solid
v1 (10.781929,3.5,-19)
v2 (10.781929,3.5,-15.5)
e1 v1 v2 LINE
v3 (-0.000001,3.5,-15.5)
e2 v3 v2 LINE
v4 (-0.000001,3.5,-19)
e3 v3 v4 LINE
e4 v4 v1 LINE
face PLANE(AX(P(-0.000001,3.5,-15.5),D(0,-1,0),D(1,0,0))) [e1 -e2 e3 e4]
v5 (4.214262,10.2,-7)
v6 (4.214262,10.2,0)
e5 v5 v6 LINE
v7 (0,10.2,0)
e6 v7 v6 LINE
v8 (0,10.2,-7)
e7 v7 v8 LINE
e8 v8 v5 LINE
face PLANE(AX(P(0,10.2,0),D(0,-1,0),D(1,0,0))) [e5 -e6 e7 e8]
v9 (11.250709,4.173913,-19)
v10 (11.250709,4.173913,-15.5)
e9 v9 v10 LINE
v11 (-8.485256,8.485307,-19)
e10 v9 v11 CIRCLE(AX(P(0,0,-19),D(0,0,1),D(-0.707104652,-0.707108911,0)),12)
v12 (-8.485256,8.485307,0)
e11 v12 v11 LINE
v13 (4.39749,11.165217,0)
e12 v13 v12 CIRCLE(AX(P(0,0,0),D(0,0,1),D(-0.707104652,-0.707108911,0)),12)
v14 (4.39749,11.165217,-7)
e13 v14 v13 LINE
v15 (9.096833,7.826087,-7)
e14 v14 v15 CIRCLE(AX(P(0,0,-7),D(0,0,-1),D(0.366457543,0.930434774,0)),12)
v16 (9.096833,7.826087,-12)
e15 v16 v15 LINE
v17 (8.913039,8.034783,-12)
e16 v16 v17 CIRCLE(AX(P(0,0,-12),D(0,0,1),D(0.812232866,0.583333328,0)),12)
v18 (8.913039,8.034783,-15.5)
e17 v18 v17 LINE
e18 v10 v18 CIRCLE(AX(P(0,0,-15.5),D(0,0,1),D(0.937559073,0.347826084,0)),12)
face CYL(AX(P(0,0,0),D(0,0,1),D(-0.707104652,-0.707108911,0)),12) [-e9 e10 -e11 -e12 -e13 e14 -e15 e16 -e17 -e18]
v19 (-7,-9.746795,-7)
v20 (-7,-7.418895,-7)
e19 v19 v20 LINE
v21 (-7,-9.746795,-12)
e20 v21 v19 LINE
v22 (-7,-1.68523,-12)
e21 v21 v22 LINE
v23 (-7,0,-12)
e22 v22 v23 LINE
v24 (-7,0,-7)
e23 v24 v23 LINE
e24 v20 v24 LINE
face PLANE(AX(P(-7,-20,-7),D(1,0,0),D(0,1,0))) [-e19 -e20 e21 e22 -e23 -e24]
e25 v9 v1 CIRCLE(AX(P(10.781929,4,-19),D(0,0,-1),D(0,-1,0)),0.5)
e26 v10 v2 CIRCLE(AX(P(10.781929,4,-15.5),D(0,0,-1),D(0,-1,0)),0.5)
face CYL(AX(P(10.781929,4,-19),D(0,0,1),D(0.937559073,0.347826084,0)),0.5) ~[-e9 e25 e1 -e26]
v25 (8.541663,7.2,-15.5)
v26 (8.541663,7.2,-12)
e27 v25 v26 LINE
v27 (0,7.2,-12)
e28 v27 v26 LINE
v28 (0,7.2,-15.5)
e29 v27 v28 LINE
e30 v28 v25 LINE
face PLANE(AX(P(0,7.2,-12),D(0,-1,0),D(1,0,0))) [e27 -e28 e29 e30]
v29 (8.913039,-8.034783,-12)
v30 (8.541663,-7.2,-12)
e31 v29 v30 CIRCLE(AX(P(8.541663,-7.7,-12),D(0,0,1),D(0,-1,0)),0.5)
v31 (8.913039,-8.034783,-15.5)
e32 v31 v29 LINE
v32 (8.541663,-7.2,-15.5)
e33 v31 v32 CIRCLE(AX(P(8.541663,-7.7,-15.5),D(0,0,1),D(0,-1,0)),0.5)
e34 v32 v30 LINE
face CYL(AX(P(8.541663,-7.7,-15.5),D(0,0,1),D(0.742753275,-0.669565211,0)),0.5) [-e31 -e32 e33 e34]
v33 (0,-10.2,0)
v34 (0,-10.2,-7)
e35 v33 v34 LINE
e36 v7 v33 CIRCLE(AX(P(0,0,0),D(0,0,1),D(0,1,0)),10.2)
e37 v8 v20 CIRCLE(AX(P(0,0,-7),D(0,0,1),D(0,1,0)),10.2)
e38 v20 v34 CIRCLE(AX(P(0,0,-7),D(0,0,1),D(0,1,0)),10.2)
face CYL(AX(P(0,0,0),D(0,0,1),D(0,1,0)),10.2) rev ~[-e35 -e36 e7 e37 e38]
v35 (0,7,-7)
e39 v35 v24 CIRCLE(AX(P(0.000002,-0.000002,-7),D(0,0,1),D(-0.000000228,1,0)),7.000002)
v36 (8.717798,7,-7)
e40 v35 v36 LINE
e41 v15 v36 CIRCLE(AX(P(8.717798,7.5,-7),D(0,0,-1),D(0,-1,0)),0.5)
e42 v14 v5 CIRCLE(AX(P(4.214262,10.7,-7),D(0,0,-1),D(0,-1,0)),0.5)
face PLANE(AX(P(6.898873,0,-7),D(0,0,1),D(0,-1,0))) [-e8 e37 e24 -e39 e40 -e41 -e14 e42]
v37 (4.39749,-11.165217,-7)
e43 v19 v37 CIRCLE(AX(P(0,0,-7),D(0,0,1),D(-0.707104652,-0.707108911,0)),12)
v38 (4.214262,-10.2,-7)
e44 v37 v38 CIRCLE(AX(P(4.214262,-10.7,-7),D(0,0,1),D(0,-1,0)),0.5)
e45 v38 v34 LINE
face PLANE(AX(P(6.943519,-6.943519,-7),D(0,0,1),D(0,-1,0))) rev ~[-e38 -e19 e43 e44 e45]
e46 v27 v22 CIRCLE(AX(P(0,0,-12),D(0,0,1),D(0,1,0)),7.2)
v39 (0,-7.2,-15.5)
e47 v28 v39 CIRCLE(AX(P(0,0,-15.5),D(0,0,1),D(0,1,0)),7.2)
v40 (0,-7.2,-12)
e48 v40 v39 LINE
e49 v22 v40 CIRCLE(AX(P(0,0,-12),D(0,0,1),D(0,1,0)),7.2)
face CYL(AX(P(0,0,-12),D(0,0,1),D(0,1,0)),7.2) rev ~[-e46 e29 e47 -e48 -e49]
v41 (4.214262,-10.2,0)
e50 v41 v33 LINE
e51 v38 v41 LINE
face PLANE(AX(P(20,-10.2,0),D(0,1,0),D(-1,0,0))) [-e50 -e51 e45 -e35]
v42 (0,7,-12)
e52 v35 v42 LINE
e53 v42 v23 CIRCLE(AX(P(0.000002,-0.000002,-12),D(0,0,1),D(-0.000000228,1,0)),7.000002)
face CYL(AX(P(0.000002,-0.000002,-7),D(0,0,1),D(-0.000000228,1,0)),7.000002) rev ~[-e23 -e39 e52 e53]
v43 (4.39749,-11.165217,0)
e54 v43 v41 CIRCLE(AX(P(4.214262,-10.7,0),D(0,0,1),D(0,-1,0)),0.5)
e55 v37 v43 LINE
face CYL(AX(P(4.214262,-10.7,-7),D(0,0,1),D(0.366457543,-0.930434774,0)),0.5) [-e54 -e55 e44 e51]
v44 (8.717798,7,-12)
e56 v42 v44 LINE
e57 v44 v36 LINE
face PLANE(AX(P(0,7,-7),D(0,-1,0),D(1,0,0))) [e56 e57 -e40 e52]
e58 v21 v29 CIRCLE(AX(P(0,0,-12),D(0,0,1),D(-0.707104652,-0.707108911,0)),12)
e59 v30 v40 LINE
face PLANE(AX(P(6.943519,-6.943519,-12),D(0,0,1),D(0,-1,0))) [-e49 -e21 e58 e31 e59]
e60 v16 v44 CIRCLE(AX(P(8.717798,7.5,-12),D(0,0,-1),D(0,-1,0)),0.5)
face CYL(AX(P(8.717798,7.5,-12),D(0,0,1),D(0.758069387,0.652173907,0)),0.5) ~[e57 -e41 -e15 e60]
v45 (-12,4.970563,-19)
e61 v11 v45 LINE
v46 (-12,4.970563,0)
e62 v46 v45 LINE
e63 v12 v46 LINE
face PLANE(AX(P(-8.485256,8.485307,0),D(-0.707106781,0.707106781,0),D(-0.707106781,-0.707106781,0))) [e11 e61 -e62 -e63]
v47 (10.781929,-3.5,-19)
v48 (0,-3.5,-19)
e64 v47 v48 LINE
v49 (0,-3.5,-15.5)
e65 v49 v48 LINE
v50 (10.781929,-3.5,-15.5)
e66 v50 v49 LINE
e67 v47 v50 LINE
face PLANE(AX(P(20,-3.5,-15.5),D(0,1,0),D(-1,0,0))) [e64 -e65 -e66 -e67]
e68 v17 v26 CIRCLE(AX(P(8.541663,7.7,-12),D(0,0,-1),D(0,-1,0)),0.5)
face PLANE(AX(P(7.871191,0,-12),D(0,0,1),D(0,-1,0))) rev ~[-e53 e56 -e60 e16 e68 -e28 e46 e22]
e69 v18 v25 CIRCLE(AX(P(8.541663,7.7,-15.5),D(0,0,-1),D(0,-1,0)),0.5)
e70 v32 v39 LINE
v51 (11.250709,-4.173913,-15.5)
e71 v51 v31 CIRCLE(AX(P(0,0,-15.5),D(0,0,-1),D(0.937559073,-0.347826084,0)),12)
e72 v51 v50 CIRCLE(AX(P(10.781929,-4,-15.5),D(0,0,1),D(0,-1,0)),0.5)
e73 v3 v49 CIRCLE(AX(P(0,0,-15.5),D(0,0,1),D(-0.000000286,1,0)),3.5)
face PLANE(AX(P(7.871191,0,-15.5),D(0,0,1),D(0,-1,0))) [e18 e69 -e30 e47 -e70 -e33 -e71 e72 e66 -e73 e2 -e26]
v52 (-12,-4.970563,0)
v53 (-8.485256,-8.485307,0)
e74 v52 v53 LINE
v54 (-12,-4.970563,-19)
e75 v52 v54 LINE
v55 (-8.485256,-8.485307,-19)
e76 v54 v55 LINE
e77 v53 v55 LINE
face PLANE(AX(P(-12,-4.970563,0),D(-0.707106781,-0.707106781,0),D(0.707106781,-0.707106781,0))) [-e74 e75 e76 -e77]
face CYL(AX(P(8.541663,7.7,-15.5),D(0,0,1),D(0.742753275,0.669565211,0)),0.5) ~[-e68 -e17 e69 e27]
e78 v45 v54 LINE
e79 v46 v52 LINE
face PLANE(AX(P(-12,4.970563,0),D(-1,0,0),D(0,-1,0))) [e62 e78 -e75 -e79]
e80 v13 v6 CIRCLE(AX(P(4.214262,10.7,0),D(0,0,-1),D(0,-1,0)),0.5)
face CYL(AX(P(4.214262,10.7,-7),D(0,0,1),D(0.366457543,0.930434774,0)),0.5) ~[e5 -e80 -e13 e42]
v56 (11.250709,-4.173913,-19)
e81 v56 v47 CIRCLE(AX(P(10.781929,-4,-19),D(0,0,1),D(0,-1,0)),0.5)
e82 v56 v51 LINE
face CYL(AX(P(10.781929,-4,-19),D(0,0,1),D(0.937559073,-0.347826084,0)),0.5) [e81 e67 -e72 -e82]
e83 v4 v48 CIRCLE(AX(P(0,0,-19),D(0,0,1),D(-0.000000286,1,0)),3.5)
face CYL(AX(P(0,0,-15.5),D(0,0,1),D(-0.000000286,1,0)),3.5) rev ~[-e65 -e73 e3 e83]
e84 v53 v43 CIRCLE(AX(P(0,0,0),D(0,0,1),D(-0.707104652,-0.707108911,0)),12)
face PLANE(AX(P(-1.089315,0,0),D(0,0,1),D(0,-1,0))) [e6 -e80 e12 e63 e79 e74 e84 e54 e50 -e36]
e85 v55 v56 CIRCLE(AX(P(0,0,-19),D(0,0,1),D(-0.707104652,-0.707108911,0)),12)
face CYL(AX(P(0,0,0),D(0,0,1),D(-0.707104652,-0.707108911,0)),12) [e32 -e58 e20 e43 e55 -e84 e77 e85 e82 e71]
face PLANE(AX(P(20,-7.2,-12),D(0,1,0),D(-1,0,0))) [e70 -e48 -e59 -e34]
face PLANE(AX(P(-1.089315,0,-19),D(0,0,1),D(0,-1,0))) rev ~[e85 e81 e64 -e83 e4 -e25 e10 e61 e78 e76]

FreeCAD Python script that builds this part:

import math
import FreeCAD as App
import Part
import Sketcher
Q = App.Units.Quantity


def edges_at(feature, points):
    """Names of the edges that pass closest to the given points."""
    edges = feature.Shape.Edges
    near = lambda p: min(range(len(edges)), key=lambda i: edges[i].distToShape(Part.Vertex(*p))[0])
    return sorted({f"Edge{near(p) + 1}" for p in points})

doc = App.newDocument("Part")
body = doc.addObject("PartDesign::Body", "Body")

sketch1 = body.newObject("Sketcher::SketchObject", "Sketch")
sketch1.AttachmentSupport = (doc.getObject("XY_Plane"), [""])
sketch1.MapMode = "FlatFace"
sketch1.addGeometry(Part.ArcOfCircle(Part.Circle(App.Vector(0, 0, 0), App.Vector(0, 0, 1), 12), math.radians(-134.999827), math.radians(134.999827)), False)
sketch1.addGeometry(Part.LineSegment(App.Vector(-8.485256, 8.485307, 0), App.Vector(-12, 4.970563, 0)), False)
sketch1.addGeometry(Part.LineSegment(App.Vector(-12, 4.970563, 0), App.Vector(-12, -4.970563, 0)), False)
sketch1.addGeometry(Part.LineSegment(App.Vector(-12, -4.970563, 0), App.Vector(-8.485256, -8.485307, 0)), False)
sketch1.addConstraint(Sketcher.Constraint("Coincident", 0, 2, 1, 1))
sketch1.addConstraint(Sketcher.Constraint("Coincident", 1, 2, 2, 1))
sketch1.addConstraint(Sketcher.Constraint("Coincident", 2, 2, 3, 1))
sketch1.addConstraint(Sketcher.Constraint("Coincident", 3, 2, 0, 1))
sketch1.addConstraint(Sketcher.Constraint("Vertical", 2))
sketch1.addConstraint(Sketcher.Constraint("Coincident", 0, 3, -1, 1))
sketch1.addConstraint(Sketcher.Constraint("Perpendicular", 1, 3))
sketch1.addConstraint(Sketcher.Constraint("Vertical", 0, 2, 3, 2))
sketch1.addConstraint(Sketcher.Constraint("Equal", 1, 3))
sketch1.addConstraint(Sketcher.Constraint("Radius", 0, Q("12 mm")))
sketch1.addConstraint(Sketcher.Constraint("DistanceX", 1, 2, -1, 1, Q("12 mm")))
sketch1.addConstraint(Sketcher.Constraint("Distance", 1, Q("4.970599 mm")))
pad1 = body.newObject("PartDesign::Pad", "Pad")
pad1.Profile = sketch1
pad1.Length = 19
pad1.Reversed = True

sketch2 = body.newObject("Sketcher::SketchObject", "Sketch001")
sketch2.AttachmentSupport = (doc.getObject("XY_Plane"), [""])
sketch2.MapMode = "FlatFace"
sketch2.addGeometry(Part.ArcOfCircle(Part.Circle(App.Vector(0, 0, 0), App.Vector(0, 0, 1), 10.2), math.radians(90), math.radians(270)), False)
sketch2.addGeometry(Part.LineSegment(App.Vector(0, -10.2, 0), App.Vector(20, -10.2, 0)), False)
sketch2.addGeometry(Part.LineSegment(App.Vector(20, -10.2, 0), App.Vector(20, 10.2, 0)), False)
sketch2.addGeometry(Part.LineSegment(App.Vector(20, 10.2, 0), App.Vector(0, 10.2, 0)), False)
sketch2.addConstraint(Sketcher.Constraint("Tangent", 0, 2, 1, 1))
sketch2.addConstraint(Sketcher.Constraint("Coincident", 1, 2, 2, 1))
sketch2.addConstraint(Sketcher.Constraint("Coincident", 2, 2, 3, 1))
sketch2.addConstraint(Sketcher.Constraint("Tangent", 3, 2, 0, 1))
sketch2.addConstraint(Sketcher.Constraint("Horizontal", 1))
sketch2.addConstraint(Sketcher.Constraint("Vertical", 2))
sketch2.addConstraint(Sketcher.Constraint("Horizontal", 3))
sketch2.addConstraint(Sketcher.Constraint("Coincident", 0, 3, -1, 1))
sketch2.addConstraint(Sketcher.Constraint("Radius", 0, Q("10.2 mm")))
sketch2.addConstraint(Sketcher.Constraint("DistanceX", 1, 1, 1, 2, Q("20 mm")))
pocket1 = body.newObject("PartDesign::Pocket", "Pocket")
pocket1.Profile = sketch2
pocket1.Length = 7

sketch3 = body.newObject("Sketcher::SketchObject", "Sketch002")
sketch3.AttachmentSupport = (doc.getObject("XY_Plane"), [""])
sketch3.MapMode = "FlatFace"
sketch3.AttachmentOffset = App.Placement(App.Vector(0, 0, -7), App.Rotation())
sketch3.addGeometry(Part.ArcOfCircle(Part.Circle(App.Vector(0.000002, -0.000002, 0), App.Vector(0, 0, 1), 7.000002), math.radians(90.000013), math.radians(179.999987)), False)
sketch3.addGeometry(Part.LineSegment(App.Vector(-7, 0, 0), App.Vector(-7, -20, 0)), False)
sketch3.addGeometry(Part.LineSegment(App.Vector(-7, -20, 0), App.Vector(20, -20, 0)), False)
sketch3.addGeometry(Part.LineSegment(App.Vector(20, -20, 0), App.Vector(20, 7, 0)), False)
sketch3.addGeometry(Part.LineSegment(App.Vector(20, 7, 0), App.Vector(0, 7, 0)), False)
sketch3.addConstraint(Sketcher.Constraint("Tangent", 0, 2, 1, 1))
sketch3.addConstraint(Sketcher.Constraint("Coincident", 1, 2, 2, 1))
sketch3.addConstraint(Sketcher.Constraint("Coincident", 2, 2, 3, 1))
sketch3.addConstraint(Sketcher.Constraint("Coincident", 3, 2, 4, 1))
sketch3.addConstraint(Sketcher.Constraint("Tangent", 4, 2, 0, 1))
sketch3.addConstraint(Sketcher.Constraint("Vertical", 1))
sketch3.addConstraint(Sketcher.Constraint("Horizontal", 2))
sketch3.addConstraint(Sketcher.Constraint("Vertical", 3))
sketch3.addConstraint(Sketcher.Constraint("Horizontal", 4))
sketch3.addConstraint(Sketcher.Constraint("Coincident", 0, 3, -1, 1))
sketch3.addConstraint(Sketcher.Constraint("Equal", 4, 1))
sketch3.addConstraint(Sketcher.Constraint("Radius", 0, Q("7.000002 mm")))
sketch3.addConstraint(Sketcher.Constraint("DistanceX", 2, 1, 2, 2, Q("27 mm")))
pocket2 = body.newObject("PartDesign::Pocket", "Pocket001")
pocket2.Profile = sketch3
pocket2.Length = 5

sketch4 = body.newObject("Sketcher::SketchObject", "Sketch003")
sketch4.AttachmentSupport = (doc.getObject("XY_Plane"), [""])
sketch4.MapMode = "FlatFace"
sketch4.AttachmentOffset = App.Placement(App.Vector(0, 0, -12), App.Rotation())
sketch4.addGeometry(Part.ArcOfCircle(Part.Circle(App.Vector(0, 0, 0), App.Vector(0, 0, 1), 7.2), math.radians(90), math.radians(270)), False)
sketch4.addGeometry(Part.LineSegment(App.Vector(0, -7.2, 0), App.Vector(20, -7.2, 0)), False)
sketch4.addGeometry(Part.LineSegment(App.Vector(20, -7.2, 0), App.Vector(20, 7.2, 0)), False)
sketch4.addGeometry(Part.LineSegment(App.Vector(20, 7.2, 0), App.Vector(0, 7.2, 0)), False)
sketch4.addConstraint(Sketcher.Constraint("Tangent", 0, 2, 1, 1))
sketch4.addConstraint(Sketcher.Constraint("Coincident", 1, 2, 2, 1))
sketch4.addConstraint(Sketcher.Constraint("Coincident", 2, 2, 3, 1))
sketch4.addConstraint(Sketcher.Constraint("Tangent", 3, 2, 0, 1))
sketch4.addConstraint(Sketcher.Constraint("Horizontal", 1))
sketch4.addConstraint(Sketcher.Constraint("Vertical", 2))
sketch4.addConstraint(Sketcher.Constraint("Horizontal", 3))
sketch4.addConstraint(Sketcher.Constraint("Coincident", 0, 3, -1, 1))
sketch4.addConstraint(Sketcher.Constraint("Radius", 0, Q("7.2 mm")))
sketch4.addConstraint(Sketcher.Constraint("DistanceX", 1, 1, 1, 2, Q("20 mm")))
pocket3 = body.newObject("PartDesign::Pocket", "Pocket002")
pocket3.Profile = sketch4
pocket3.Length = 3.5

sketch5 = body.newObject("Sketcher::SketchObject", "Sketch004")
sketch5.AttachmentSupport = (doc.getObject("XY_Plane"), [""])
sketch5.MapMode = "FlatFace"
sketch5.AttachmentOffset = App.Placement(App.Vector(0, 0, -15.5), App.Rotation())
sketch5.addGeometry(Part.ArcOfCircle(Part.Circle(App.Vector(0, 0, 0), App.Vector(0, 0, 1), 3.5), math.radians(90.000016), math.radians(270)), False)
sketch5.addGeometry(Part.LineSegment(App.Vector(0, -3.5, 0), App.Vector(20, -3.5, 0)), False)
sketch5.addGeometry(Part.LineSegment(App.Vector(20, -3.5, 0), App.Vector(20, 3.5, 0)), False)
sketch5.addGeometry(Part.LineSegment(App.Vector(20, 3.5, 0), App.Vector(-0.000001, 3.5, 0)), False)
sketch5.addConstraint(Sketcher.Constraint("Tangent", 0, 2, 1, 1))
sketch5.addConstraint(Sketcher.Constraint("Coincident", 1, 2, 2, 1))
sketch5.addConstraint(Sketcher.Constraint("Coincident", 2, 2, 3, 1))
sketch5.addConstraint(Sketcher.Constraint("Tangent", 3, 2, 0, 1))
sketch5.addConstraint(Sketcher.Constraint("Horizontal", 1))
sketch5.addConstraint(Sketcher.Constraint("Vertical", 2))
sketch5.addConstraint(Sketcher.Constraint("Horizontal", 3))
sketch5.addConstraint(Sketcher.Constraint("Coincident", 0, 3, -1, 1))
sketch5.addConstraint(Sketcher.Constraint("Radius", 0, Q("3.5 mm")))
sketch5.addConstraint(Sketcher.Constraint("DistanceX", 1, 1, 1, 2, Q("20 mm")))
pocket4 = body.newObject("PartDesign::Pocket", "Pocket003")
pocket4.Profile = sketch5
pocket4.Type = "ThroughAll"
doc.recompute()

fillet = body.newObject("PartDesign::Fillet", "Fillet")
fillet.Base = (pocket4, edges_at(pocket4, [
    (6.321, -10.2, -3.5),
    (9.6, -7.2, -13.75),
    (11.478, -3.5, -17.25),
    (11.478, 3.5, -17.25),
    (9.6, 7.2, -13.75),
    (6.321, 10.2, -3.5),
]))
fillet.Radius = 0.5
doc.recompute()

fillet2 = body.newObject("PartDesign::Fillet", "Fillet001")
fillet2.Base = (fillet, edges_at(fillet, [(9.747, 7, -9.5)]))
fillet2.Radius = 0.5

doc.recompute()
